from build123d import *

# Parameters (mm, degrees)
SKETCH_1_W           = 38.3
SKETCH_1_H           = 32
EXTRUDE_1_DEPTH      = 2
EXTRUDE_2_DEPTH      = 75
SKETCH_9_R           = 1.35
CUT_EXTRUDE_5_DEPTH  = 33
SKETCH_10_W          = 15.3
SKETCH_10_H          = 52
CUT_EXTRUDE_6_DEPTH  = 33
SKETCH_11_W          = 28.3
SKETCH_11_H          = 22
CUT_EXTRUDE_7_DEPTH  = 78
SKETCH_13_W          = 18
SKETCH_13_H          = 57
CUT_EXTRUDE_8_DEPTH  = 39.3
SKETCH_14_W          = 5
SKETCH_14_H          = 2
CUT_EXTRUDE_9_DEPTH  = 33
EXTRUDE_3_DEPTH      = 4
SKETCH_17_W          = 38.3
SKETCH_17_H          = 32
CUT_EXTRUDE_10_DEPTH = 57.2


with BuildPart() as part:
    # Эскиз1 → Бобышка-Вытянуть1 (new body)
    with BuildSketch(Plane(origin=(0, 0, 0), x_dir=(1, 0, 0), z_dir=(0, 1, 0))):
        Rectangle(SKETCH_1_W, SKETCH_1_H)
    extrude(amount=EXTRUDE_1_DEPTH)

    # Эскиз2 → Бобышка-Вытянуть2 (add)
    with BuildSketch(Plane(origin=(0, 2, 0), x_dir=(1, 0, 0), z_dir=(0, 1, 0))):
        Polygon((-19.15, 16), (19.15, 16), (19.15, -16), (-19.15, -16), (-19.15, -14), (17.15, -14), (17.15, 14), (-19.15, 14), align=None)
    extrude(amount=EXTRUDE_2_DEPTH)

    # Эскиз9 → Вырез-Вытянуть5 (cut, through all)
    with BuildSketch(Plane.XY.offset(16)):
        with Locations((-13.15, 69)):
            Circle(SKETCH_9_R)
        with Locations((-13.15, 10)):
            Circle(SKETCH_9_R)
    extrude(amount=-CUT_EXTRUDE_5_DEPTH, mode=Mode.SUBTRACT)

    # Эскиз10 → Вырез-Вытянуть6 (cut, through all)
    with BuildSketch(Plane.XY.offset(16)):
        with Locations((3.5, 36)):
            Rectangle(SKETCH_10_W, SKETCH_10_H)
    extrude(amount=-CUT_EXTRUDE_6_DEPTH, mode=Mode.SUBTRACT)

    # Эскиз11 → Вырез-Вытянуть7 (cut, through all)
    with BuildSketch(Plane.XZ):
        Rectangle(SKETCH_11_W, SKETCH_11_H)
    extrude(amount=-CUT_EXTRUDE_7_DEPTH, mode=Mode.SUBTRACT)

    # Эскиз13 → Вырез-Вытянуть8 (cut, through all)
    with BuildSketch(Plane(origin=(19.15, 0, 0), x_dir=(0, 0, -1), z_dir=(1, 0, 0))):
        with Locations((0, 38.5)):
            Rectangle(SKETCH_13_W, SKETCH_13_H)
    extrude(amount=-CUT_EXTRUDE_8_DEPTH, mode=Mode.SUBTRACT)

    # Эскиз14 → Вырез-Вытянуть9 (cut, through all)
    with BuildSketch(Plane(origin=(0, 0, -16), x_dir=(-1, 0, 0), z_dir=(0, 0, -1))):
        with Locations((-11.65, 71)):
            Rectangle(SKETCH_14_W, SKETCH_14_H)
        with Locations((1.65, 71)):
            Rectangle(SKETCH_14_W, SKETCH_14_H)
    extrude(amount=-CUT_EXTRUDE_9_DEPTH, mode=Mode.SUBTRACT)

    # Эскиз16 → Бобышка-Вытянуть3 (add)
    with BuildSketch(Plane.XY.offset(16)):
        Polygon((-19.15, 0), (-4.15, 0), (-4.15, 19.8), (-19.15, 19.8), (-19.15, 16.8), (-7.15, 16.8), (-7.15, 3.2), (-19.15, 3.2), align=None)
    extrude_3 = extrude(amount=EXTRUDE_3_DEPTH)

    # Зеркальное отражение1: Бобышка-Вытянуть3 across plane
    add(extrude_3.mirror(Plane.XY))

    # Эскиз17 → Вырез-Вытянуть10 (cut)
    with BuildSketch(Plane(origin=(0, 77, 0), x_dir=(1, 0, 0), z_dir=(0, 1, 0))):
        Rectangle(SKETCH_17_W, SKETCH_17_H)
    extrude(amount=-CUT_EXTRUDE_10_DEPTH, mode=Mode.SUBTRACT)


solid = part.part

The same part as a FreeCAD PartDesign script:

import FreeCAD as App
import Part
import Sketcher
Q = App.Units.Quantity


def add_polygon(sketch, points):
    """Adds a closed chain of lines whose ends are joined by coincident constraints."""
    first, n = sketch.GeometryCount, len(points)
    for a, b in zip(points, points[1:] + points[:1]):
        sketch.addGeometry(Part.LineSegment(App.Vector(*a, 0), App.Vector(*b, 0)), False)
    for i in range(n):
        sketch.addConstraint(Sketcher.Constraint("Coincident", first + i, 2, first + (i + 1) % n, 1))

doc = App.newDocument("Part")
params = doc.addObject("Spreadsheet::Sheet", "Params")
for row, (alias, value) in enumerate([
    ("sketch1_height", "32 mm"),
    ("sketch1_width", "38.3 mm"),
    ("pad1_length", "2 mm"),
    ("sketch2_height", "2 mm"),
    ("sketch2_height2", "28 mm"),
    ("sketch2_width", "38.3 mm"),
    ("sketch2_width2", "36.3 mm"),
    ("pad2_length", "75 mm"),
    ("sketch3_diameter", "2.7 mm"),
    ("sketch4_height", "52 mm"),
    ("sketch4_width", "15.3 mm"),
    ("sketch5_height", "22 mm"),
    ("sketch5_width", "28.3 mm"),
    ("sketch6_width", "57 mm"),
    ("sketch6_height", "18 mm"),
    ("sketch7_width", "5 mm"),
    ("sketch7_height", "2 mm"),
    ("sketch8_width", "15 mm"),
    ("sketch8_width2", "12 mm"),
    ("sketch8_height", "3 mm"),
    ("sketch8_height2", "19.8 mm"),
    ("sketch8_height3", "13.6 mm"),
    ("pad3_length", "4 mm"),
    ("sketch9_height", "32 mm"),
    ("sketch9_width", "38.3 mm"),
    ("pocket6_length", "57.2 mm"),
], start=1):
    params.set(f"A{row}", alias)
    params.set(f"B{row}", "=" + value)
    params.setAlias(f"B{row}", alias)

body = doc.addObject("PartDesign::Body", "Body")

# Sketch on XZ plane
sketch1 = body.newObject("Sketcher::SketchObject", "Sketch")
sketch1.AttachmentSupport = (doc.getObject("XZ_Plane"), [""])
sketch1.MapMode = "FlatFace"
add_polygon(sketch1, [(-19.15, -16), (-19.15, 16), (19.15, 16), (19.15, -16)])  # lines 0-3
sketch1.addConstraint(Sketcher.Constraint("Vertical", 0))
sketch1.addConstraint(Sketcher.Constraint("Horizontal", 1))
sketch1.addConstraint(Sketcher.Constraint("Vertical", 2))
sketch1.addConstraint(Sketcher.Constraint("Horizontal", 3))
sketch1.addConstraint(Sketcher.Constraint("Symmetric", 0, 2, 2, 2, -1, 1))
sketch1.addConstraint(Sketcher.Constraint("DistanceY", 0, 1, 0, 2, Q("32 mm")))
sketch1.addConstraint(Sketcher.Constraint("DistanceX", 1, 1, 1, 2, Q("38.3 mm")))
sketch1.setExpression("Constraints[9]", "Params.sketch1_height")
sketch1.setExpression("Constraints[10]", "Params.sketch1_width")
pad1 = body.newObject("PartDesign::Pad", "Pad")
pad1.Profile = sketch1
pad1.setExpression("Length", "Params.pad1_length")
pad1.Reversed = True

# Sketch on XZ plane
sketch2 = body.newObject("Sketcher::SketchObject", "Sketch001")
sketch2.AttachmentSupport = (doc.getObject("XZ_Plane"), [""])
sketch2.MapMode = "FlatFace"
sketch2.AttachmentOffset = App.Placement(App.Vector(0, 0, -2), App.Rotation())
add_polygon(sketch2, [(19.15, -16), (-19.15, -16), (-19.15, -14), (17.15, -14), (17.15, 14), (-19.15, 14), (-19.15, 16), (19.15, 16)])  # lines 0-7
sketch2.addConstraint(Sketcher.Constraint("Horizontal", 0))
sketch2.addConstraint(Sketcher.Constraint("Vertical", 1))
sketch2.addConstraint(Sketcher.Constraint("Horizontal", 2))
sketch2.addConstraint(Sketcher.Constraint("Vertical", 3))
sketch2.addConstraint(Sketcher.Constraint("Horizontal", 4))
sketch2.addConstraint(Sketcher.Constraint("Vertical", 5))
sketch2.addConstraint(Sketcher.Constraint("Horizontal", 6))
sketch2.addConstraint(Sketcher.Constraint("Vertical", 7))
sketch2.addConstraint(Sketcher.Constraint("Symmetric", 0, 2, 6, 2, -1, 1))
sketch2.addConstraint(Sketcher.Constraint("Symmetric", 1, 2, 4, 2, -1))
sketch2.addConstraint(Sketcher.Constraint("DistanceY", 1, 1, 1, 2, Q("2 mm")))
sketch2.addConstraint(Sketcher.Constraint("DistanceY", 3, 1, 3, 2, Q("28 mm")))
sketch2.addConstraint(Sketcher.Constraint("DistanceX", 0, 2, 0, 1, Q("38.3 mm")))
sketch2.addConstraint(Sketcher.Constraint("DistanceX", 2, 1, 2, 2, Q("36.3 mm")))
sketch2.setExpression("Constraints[18]", "Params.sketch2_height")
sketch2.setExpression("Constraints[19]", "Params.sketch2_height2")
sketch2.setExpression("Constraints[20]", "Params.sketch2_width")
sketch2.setExpression("Constraints[21]", "Params.sketch2_width2")
pad2 = body.newObject("PartDesign::Pad", "Pad001")
pad2.Profile = sketch2
pad2.setExpression("Length", "Params.pad2_length")
pad2.Reversed = True

# Sketch on XY plane
sketch3 = body.newObject("Sketcher::SketchObject", "Sketch002")
sketch3.AttachmentSupport = (doc.getObject("XY_Plane"), [""])
sketch3.MapMode = "FlatFace"
sketch3.AttachmentOffset = App.Placement(App.Vector(0, 0, 16), App.Rotation())
sketch3.addGeometry(Part.Circle(App.Vector(-13.15, 69, 0), App.Vector(0, 0, 1), 1.35), False)
sketch3.addGeometry(Part.Circle(App.Vector(-13.15, 10, 0), App.Vector(0, 0, 1), 1.35), False)
sketch3.addConstraint(Sketcher.Constraint("Equal", 0, 1))
sketch3.addConstraint(Sketcher.Constraint("Vertical", 0, 3, 1, 3))
sketch3.addConstraint(Sketcher.Constraint("Diameter", 0, Q("2.7 mm")))
sketch3.addConstraint(Sketcher.Constraint("DistanceY", -1, 1, 0, 3, Q("69 mm")))
sketch3.addConstraint(Sketcher.Constraint("DistanceY", -1, 1, 1, 3, Q("10 mm")))
sketch3.addConstraint(Sketcher.Constraint("DistanceX", 0, 3, -1, 1, Q("13.15 mm")))
sketch3.setExpression("Constraints[2]", "Params.sketch3_diameter")
pocket1 = body.newObject("PartDesign::Pocket", "Pocket")
pocket1.Profile = sketch3
pocket1.Type = "ThroughAll"

# Sketch on XY plane
sketch4 = body.newObject("Sketcher::SketchObject", "Sketch003")
sketch4.AttachmentSupport = (doc.getObject("XY_Plane"), [""])
sketch4.MapMode = "FlatFace"
sketch4.AttachmentOffset = App.Placement(App.Vector(0, 0, 16), App.Rotation())
add_polygon(sketch4, [(-4.15, 62), (-4.15, 10), (11.15, 10), (11.15, 62)])  # lines 0-3
sketch4.addConstraint(Sketcher.Constraint("Vertical", 0))
sketch4.addConstraint(Sketcher.Constraint("Horizontal", 1))
sketch4.addConstraint(Sketcher.Constraint("Vertical", 2))
sketch4.addConstraint(Sketcher.Constraint("Horizontal", 3))
sketch4.addConstraint(Sketcher.Constraint("DistanceY", 0, 2, 0, 1, Q("52 mm")))
sketch4.addConstraint(Sketcher.Constraint("DistanceX", 1, 1, 1, 2, Q("15.3 mm")))
sketch4.addConstraint(Sketcher.Constraint("DistanceY", -1, 1, 0, 2, Q("10 mm")))
sketch4.addConstraint(Sketcher.Constraint("DistanceX", 0, 2, -1, 1, Q("4.15 mm")))
sketch4.setExpression("Constraints[8]", "Params.sketch4_height")
sketch4.setExpression("Constraints[9]", "Params.sketch4_width")
pocket2 = body.newObject("PartDesign::Pocket", "Pocket001")
pocket2.Profile = sketch4
pocket2.Type = "ThroughAll"

# Sketch on XZ plane
sketch5 = body.newObject("Sketcher::SketchObject", "Sketch004")
sketch5.AttachmentSupport = (doc.getObject("XZ_Plane"), [""])
sketch5.MapMode = "FlatFace"
add_polygon(sketch5, [(-14.15, 11), (-14.15, -11), (14.15, -11), (14.15, 11)])  # lines 0-3
sketch5.addConstraint(Sketcher.Constraint("Vertical", 0))
sketch5.addConstraint(Sketcher.Constraint("Horizontal", 1))
sketch5.addConstraint(Sketcher.Constraint("Vertical", 2))
sketch5.addConstraint(Sketcher.Constraint("Horizontal", 3))
sketch5.addConstraint(Sketcher.Constraint("Symmetric", 0, 2, 2, 2, -1, 1))
sketch5.addConstraint(Sketcher.Constraint("DistanceY", 0, 2, 0, 1, Q("22 mm")))
sketch5.addConstraint(Sketcher.Constraint("DistanceX", 1, 1, 1, 2, Q("28.3 mm")))
sketch5.setExpression("Constraints[9]", "Params.sketch5_height")
sketch5.setExpression("Constraints[10]", "Params.sketch5_width")
pocket3 = body.newObject("PartDesign::Pocket", "Pocket002")
pocket3.Profile = sketch5
pocket3.Type = "ThroughAll"

# Sketch on YZ plane
sketch6 = body.newObject("Sketcher::SketchObject", "Sketch005")
sketch6.AttachmentSupport = (doc.getObject("YZ_Plane"), [""])
sketch6.MapMode = "FlatFace"
sketch6.AttachmentOffset = App.Placement(App.Vector(0, 0, 19.15), App.Rotation())
add_polygon(sketch6, [(67, 9), (10, 9), (10, -9), (67, -9)])  # lines 0-3
sketch6.addConstraint(Sketcher.Constraint("Horizontal", 0))
sketch6.addConstraint(Sketcher.Constraint("Vertical", 1))
sketch6.addConstraint(Sketcher.Constraint("Horizontal", 2))
sketch6.addConstraint(Sketcher.Constraint("Vertical", 3))
sketch6.addConstraint(Sketcher.Constraint("DistanceX", 0, 2, 0, 1, Q("57 mm")))
sketch6.addConstraint(Sketcher.Constraint("DistanceY", 1, 2, 1, 1, Q("18 mm")))
sketch6.addConstraint(Sketcher.Constraint("DistanceX", -1, 1, 0, 2, Q("10 mm")))
sketch6.addConstraint(Sketcher.Constraint("DistanceY", -1, 1, 0, 2, Q("9 mm")))
sketch6.setExpression("Constraints[8]", "Params.sketch6_width")
sketch6.setExpression("Constraints[9]", "Params.sketch6_height")
pocket4 = body.newObject("PartDesign::Pocket", "Pocket003")
pocket4.Profile = sketch6
pocket4.Type = "ThroughAll"

# Sketch on XY plane
sketch7 = body.newObject("Sketcher::SketchObject", "Sketch006")
sketch7.AttachmentSupport = (doc.getObject("XY_Plane"), [""])
sketch7.MapMode = "FlatFace"
sketch7.AttachmentOffset = App.Placement(App.Vector(0, 0, -16), App.Rotation())
add_polygon(sketch7, [(14.15, 72), (14.15, 70), (9.15, 70), (9.15, 72)])  # lines 0-3
add_polygon(sketch7, [(0.85, 72), (0.85, 70), (-4.15, 70), (-4.15, 72)])  # lines 4-7
sketch7.addConstraint(Sketcher.Constraint("Vertical", 0))
sketch7.addConstraint(Sketcher.Constraint("Horizontal", 1))
sketch7.addConstraint(Sketcher.Constraint("Vertical", 2))
sketch7.addConstraint(Sketcher.Constraint("Horizontal", 3))
sketch7.addConstraint(Sketcher.Constraint("Vertical", 4))
sketch7.addConstraint(Sketcher.Constraint("Horizontal", 5))
sketch7.addConstraint(Sketcher.Constraint("Vertical", 6))
sketch7.addConstraint(Sketcher.Constraint("Horizontal", 7))
sketch7.addConstraint(Sketcher.Constraint("Horizontal", 1, 2, 4, 2))
sketch7.addConstraint(Sketcher.Constraint("Horizontal", 3, 2, 6, 2))
sketch7.addConstraint(Sketcher.Constraint("Equal", 3, 5))
sketch7.addConstraint(Sketcher.Constraint("DistanceX", 1, 2, 1, 1, Q("5 mm")))
sketch7.addConstraint(Sketcher.Constraint("DistanceY", 0, 2, 0, 1, Q("2 mm")))
sketch7.addConstraint(Sketcher.Constraint("DistanceY", -1, 1, 0, 2, Q("70 mm")))
sketch7.addConstraint(Sketcher.Constraint("DistanceX", 4, 2, 1, 2, Q("8.3 mm")))
sketch7.addConstraint(Sketcher.Constraint("DistanceX", -1, 1, 0, 2, Q("14.15 mm")))
sketch7.setExpression("Constraints[19]", "Params.sketch7_width")
sketch7.setExpression("Constraints[20]", "Params.sketch7_height")
pocket5 = body.newObject("PartDesign::Pocket", "Pocket004")
pocket5.Profile = sketch7
pocket5.Type = "ThroughAll"
pocket5.Reversed = True

# Sketch on XY plane
sketch8 = body.newObject("Sketcher::SketchObject", "Sketch007")
sketch8.AttachmentSupport = (doc.getObject("XY_Plane"), [""])
sketch8.MapMode = "FlatFace"
sketch8.AttachmentOffset = App.Placement(App.Vector(0, 0, 16), App.Rotation())
add_polygon(sketch8, [(-19.15, 0), (-4.15, 0), (-4.15, 19.8), (-19.15, 19.8), (-19.15, 16.8), (-7.15, 16.8), (-7.15, 3.2), (-19.15, 3.2)])  # lines 0-7
sketch8.addConstraint(Sketcher.Constraint("Horizontal", 0))
sketch8.addConstraint(Sketcher.Constraint("Vertical", 1))
sketch8.addConstraint(Sketcher.Constraint("Horizontal", 2))
sketch8.addConstraint(Sketcher.Constraint("Vertical", 3))
sketch8.addConstraint(Sketcher.Constraint("Horizontal", 4))
sketch8.addConstraint(Sketcher.Constraint("Vertical", 5))
sketch8.addConstraint(Sketcher.Constraint("Horizontal", 6))
sketch8.addConstraint(Sketcher.Constraint("Vertical", 7))
sketch8.addConstraint(Sketcher.Constraint("PointOnObject", 0, 2, -1))
sketch8.addConstraint(Sketcher.Constraint("Vertical", 3, 2, 6, 2))
sketch8.addConstraint(Sketcher.Constraint("DistanceX", 0, 1, 0, 2, Q("15 mm")))
sketch8.addConstraint(Sketcher.Constraint("DistanceX", 4, 1, 4, 2, Q("12 mm")))
sketch8.addConstraint(Sketcher.Constraint("DistanceY", 3, 2, 3, 1, Q("3 mm")))
sketch8.addConstraint(Sketcher.Constraint("DistanceY", 1, 1, 1, 2, Q("19.8 mm")))
sketch8.addConstraint(Sketcher.Constraint("DistanceY", 5, 2, 5, 1, Q("13.6 mm")))
sketch8.addConstraint(Sketcher.Constraint("DistanceX", 0, 2, -1, 1, Q("4.15 mm")))
sketch8.setExpression("Constraints[18]", "Params.sketch8_width")
sketch8.setExpression("Constraints[19]", "Params.sketch8_width2")
sketch8.setExpression("Constraints[20]", "Params.sketch8_height")
sketch8.setExpression("Constraints[21]", "Params.sketch8_height2")
sketch8.setExpression("Constraints[22]", "Params.sketch8_height3")
pad3 = body.newObject("PartDesign::Pad", "Pad002")
pad3.Profile = sketch8
pad3.setExpression("Length", "Params.pad3_length")
doc.recompute()

mirrored = body.newObject("PartDesign::Mirrored", "Mirrored")
mirrored.Originals = [pad3]
mirrored.MirrorPlane = (doc.getObject("XY_Plane"), [""])
body.Tip = mirrored

# Sketch on XZ plane
sketch9 = body.newObject("Sketcher::SketchObject", "Sketch008")
sketch9.AttachmentSupport = (doc.getObject("XZ_Plane"), [""])
sketch9.MapMode = "FlatFace"
sketch9.AttachmentOffset = App.Placement(App.Vector(0, 0, -77), App.Rotation())
add_polygon(sketch9, [(-19.15, -16), (-19.15, 16), (19.15, 16), (19.15, -16)])  # lines 0-3
sketch9.addConstraint(Sketcher.Constraint("Vertical", 0))
sketch9.addConstraint(Sketcher.Constraint("Horizontal", 1))
sketch9.addConstraint(Sketcher.Constraint("Vertical", 2))
sketch9.addConstraint(Sketcher.Constraint("Horizontal", 3))
sketch9.addConstraint(Sketcher.Constraint("Symmetric", 0, 2, 2, 2, -1, 1))
sketch9.addConstraint(Sketcher.Constraint("DistanceY", 0, 1, 0, 2, Q("32 mm")))
sketch9.addConstraint(Sketcher.Constraint("DistanceX", 1, 1, 1, 2, Q("38.3 mm")))
sketch9.setExpression("Constraints[9]", "Params.sketch9_height")
sketch9.setExpression("Constraints[10]", "Params.sketch9_width")
pocket6 = body.newObject("PartDesign::Pocket", "Pocket005")
pocket6.Profile = sketch9
pocket6.setExpression("Length", "Params.pocket6_length")
pocket6.Reversed = True

doc.recompute()
